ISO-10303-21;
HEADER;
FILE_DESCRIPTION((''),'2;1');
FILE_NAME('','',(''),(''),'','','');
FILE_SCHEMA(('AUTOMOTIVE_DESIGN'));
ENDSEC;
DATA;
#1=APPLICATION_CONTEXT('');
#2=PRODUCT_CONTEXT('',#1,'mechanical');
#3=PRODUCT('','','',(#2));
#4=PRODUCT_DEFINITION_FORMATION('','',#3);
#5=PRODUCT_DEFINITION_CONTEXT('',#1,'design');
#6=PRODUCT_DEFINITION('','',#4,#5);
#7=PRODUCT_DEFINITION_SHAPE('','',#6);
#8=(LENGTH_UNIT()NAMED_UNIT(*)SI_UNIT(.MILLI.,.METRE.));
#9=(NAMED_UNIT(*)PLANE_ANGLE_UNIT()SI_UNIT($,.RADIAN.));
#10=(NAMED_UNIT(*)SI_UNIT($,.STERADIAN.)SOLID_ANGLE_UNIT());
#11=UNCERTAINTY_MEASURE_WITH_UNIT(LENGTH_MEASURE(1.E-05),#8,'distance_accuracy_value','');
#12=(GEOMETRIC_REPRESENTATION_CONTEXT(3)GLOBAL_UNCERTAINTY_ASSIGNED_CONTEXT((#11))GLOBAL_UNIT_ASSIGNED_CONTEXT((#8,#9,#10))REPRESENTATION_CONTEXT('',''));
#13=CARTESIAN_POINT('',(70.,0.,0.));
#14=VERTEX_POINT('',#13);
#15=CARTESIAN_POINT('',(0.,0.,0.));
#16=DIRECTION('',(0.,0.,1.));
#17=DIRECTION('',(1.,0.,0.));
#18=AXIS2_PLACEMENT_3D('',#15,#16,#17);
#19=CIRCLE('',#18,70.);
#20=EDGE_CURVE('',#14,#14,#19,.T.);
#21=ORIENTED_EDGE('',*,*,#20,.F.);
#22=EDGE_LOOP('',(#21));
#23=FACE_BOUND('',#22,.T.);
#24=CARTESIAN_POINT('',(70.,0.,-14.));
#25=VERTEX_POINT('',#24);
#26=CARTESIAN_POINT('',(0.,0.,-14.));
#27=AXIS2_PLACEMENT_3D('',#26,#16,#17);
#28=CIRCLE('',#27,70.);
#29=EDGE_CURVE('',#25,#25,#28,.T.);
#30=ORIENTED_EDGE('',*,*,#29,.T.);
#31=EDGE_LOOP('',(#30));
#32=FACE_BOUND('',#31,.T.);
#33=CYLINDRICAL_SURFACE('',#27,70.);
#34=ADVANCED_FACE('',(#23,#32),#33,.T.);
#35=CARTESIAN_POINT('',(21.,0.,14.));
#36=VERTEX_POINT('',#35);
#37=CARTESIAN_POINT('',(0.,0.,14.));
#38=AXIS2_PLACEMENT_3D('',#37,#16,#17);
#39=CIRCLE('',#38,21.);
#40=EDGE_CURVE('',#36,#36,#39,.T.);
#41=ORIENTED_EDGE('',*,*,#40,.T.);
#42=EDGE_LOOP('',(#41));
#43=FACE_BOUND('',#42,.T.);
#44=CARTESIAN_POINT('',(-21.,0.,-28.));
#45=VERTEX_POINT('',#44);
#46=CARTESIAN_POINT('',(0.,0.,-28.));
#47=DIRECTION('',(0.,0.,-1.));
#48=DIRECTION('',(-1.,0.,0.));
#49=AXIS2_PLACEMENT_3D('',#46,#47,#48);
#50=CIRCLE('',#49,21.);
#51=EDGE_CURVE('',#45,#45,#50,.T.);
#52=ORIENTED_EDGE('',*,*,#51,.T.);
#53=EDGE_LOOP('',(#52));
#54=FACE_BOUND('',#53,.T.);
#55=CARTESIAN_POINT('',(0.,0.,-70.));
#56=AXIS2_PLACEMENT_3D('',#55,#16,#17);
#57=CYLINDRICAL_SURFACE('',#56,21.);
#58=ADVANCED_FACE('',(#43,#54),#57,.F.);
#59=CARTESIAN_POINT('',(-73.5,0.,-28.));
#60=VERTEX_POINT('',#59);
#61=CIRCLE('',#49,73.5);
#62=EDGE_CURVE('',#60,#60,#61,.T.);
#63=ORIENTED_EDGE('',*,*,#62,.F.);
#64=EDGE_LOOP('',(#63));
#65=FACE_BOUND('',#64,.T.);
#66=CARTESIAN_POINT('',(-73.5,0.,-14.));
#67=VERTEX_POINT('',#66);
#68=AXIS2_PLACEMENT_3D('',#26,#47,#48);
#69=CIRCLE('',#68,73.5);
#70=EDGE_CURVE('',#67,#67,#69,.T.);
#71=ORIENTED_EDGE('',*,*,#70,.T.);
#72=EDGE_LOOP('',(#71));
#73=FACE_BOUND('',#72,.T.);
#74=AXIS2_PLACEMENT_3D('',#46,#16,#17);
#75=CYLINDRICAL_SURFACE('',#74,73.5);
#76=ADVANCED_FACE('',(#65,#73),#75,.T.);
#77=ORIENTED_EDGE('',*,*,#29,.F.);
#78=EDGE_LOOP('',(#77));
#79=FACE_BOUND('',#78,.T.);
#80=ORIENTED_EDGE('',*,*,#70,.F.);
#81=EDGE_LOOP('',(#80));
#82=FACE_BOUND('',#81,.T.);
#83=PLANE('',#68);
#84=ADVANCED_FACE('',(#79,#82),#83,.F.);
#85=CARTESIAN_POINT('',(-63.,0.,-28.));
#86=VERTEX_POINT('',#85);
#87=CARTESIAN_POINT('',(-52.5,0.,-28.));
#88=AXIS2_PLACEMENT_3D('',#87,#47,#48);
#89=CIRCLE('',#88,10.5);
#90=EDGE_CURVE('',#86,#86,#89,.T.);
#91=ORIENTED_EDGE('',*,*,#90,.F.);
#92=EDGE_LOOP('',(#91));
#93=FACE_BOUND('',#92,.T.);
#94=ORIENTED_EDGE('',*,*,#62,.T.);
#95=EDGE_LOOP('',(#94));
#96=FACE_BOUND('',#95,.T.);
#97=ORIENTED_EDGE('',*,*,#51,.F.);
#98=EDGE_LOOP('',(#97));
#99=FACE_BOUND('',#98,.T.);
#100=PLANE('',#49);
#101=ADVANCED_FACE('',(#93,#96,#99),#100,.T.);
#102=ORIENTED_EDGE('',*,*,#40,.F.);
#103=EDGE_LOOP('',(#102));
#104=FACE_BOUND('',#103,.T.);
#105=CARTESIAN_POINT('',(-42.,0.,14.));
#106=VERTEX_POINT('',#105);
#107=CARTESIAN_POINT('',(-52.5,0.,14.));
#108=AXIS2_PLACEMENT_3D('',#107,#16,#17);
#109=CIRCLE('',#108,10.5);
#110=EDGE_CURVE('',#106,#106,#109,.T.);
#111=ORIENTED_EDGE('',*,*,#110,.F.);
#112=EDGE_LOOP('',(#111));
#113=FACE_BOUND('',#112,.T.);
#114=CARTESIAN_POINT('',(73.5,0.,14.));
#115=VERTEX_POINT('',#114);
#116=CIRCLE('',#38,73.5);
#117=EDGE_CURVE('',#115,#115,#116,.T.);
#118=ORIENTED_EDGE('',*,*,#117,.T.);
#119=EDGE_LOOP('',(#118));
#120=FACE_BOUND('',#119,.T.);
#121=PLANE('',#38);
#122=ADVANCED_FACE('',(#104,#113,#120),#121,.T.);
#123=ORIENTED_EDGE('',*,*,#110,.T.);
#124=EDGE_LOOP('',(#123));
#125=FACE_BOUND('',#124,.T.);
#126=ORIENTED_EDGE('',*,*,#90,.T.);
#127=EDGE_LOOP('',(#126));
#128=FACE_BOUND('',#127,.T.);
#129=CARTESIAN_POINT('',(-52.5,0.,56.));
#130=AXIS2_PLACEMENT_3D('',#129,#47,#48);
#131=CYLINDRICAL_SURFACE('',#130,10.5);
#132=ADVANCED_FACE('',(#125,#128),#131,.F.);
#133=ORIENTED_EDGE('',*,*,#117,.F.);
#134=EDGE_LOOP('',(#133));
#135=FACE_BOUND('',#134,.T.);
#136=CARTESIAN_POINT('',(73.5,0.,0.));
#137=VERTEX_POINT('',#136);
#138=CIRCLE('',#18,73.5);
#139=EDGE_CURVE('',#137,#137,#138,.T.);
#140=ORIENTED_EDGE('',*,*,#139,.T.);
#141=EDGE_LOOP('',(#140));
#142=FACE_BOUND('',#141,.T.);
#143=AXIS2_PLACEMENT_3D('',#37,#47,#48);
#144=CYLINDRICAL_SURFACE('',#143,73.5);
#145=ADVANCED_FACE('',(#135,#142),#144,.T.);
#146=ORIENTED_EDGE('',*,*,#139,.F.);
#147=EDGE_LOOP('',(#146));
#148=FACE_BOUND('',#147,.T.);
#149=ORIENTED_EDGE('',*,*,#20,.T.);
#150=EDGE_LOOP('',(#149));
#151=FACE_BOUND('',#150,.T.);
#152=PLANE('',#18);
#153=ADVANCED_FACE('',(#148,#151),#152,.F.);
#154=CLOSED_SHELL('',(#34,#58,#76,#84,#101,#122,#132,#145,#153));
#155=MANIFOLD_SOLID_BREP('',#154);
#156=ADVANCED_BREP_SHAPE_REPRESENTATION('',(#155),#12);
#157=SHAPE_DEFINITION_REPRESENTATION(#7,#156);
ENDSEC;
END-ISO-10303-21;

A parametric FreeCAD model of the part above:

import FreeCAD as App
import Part
import Sketcher

V = App.Vector

doc = App.newDocument("Part")
body = doc.addObject("PartDesign::Body", "Body")

sketch1 = body.newObject("Sketcher::SketchObject", "Sketch")
sketch1.AttachmentSupport = (doc.getObject("XY_Plane"), [""])
sketch1.MapMode = "FlatFace"
sketch1.addGeometry(Part.Circle(V(0, 0, 0), V(0, 0, 1), 73.5), False)
sketch1.addConstraint(Sketcher.Constraint("Coincident", 0, 3, -1, 1))
sketch1.addConstraint(Sketcher.Constraint("Diameter", 0, 147.0))
pad1 = body.newObject("PartDesign::Pad", "Pad")
pad1.Profile = sketch1
pad1.Length = 14

sketch2 = body.newObject("Sketcher::SketchObject", "Sketch001")
sketch2.AttachmentSupport = (doc.getObject("XY_Plane"), [""])
sketch2.MapMode = "FlatFace"
sketch2.addGeometry(Part.Circle(V(0, 0, 0), V(0, 0, 1), 70), False)
sketch2.addConstraint(Sketcher.Constraint("Coincident", 0, 3, -1, 1))
sketch2.addConstraint(Sketcher.Constraint("Diameter", 0, 140.0))
pad2 = body.newObject("PartDesign::Pad", "Pad001")
pad2.Profile = sketch2
pad2.Length = 14
pad2.Reversed = True

sketch3 = body.newObject("Sketcher::SketchObject", "Sketch002")
sketch3.AttachmentSupport = (doc.getObject("XY_Plane"), [""])
sketch3.MapMode = "FlatFace"
sketch3.AttachmentOffset = App.Placement(V(0, 0, -14), App.Rotation())
sketch3.addGeometry(Part.Circle(V(0, 0, 0), V(0, 0, 1), 73.5), False)
sketch3.addConstraint(Sketcher.Constraint("Coincident", 0, 3, -1, 1))
sketch3.addConstraint(Sketcher.Constraint("Diameter", 0, 147.0))
pad3 = body.newObject("PartDesign::Pad", "Pad002")
pad3.Profile = sketch3
pad3.Length = 14
pad3.Reversed = True

sketch4 = body.newObject("Sketcher::SketchObject", "Sketch003")
sketch4.AttachmentSupport = (doc.getObject("XY_Plane"), [""])
sketch4.MapMode = "FlatFace"
sketch4.AttachmentOffset = App.Placement(V(0, 0, 14), App.Rotation())
sketch4.addGeometry(Part.Circle(V(0, 0, 0), V(0, 0, 1), 21), False)
sketch4.addConstraint(Sketcher.Constraint("Coincident", 0, 3, -1, 1))
sketch4.addConstraint(Sketcher.Constraint("Diameter", 0, 42.0))
pocket1 = body.newObject("PartDesign::Pocket", "Pocket")
pocket1.Profile = sketch4
pocket1.Length = 84

sketch5 = body.newObject("Sketcher::SketchObject", "Sketch004")
sketch5.AttachmentSupport = (doc.getObject("XY_Plane"), [""])
sketch5.MapMode = "FlatFace"
sketch5.AttachmentOffset = App.Placement(V(0, 0, -28), App.Rotation())
sketch5.addGeometry(Part.Circle(V(-52.5, 0, 0), V(0, 0, 1), 10.5), False)
sketch5.addConstraint(Sketcher.Constraint("PointOnObject", 0, 3, -1))
sketch5.addConstraint(Sketcher.Constraint("Diameter", 0, 21.0))
sketch5.addConstraint(Sketcher.Constraint("DistanceX", 0, 3, -1, 1, 52.5))
pocket2 = body.newObject("PartDesign::Pocket", "Pocket001")
pocket2.Profile = sketch5
pocket2.Length = 84
pocket2.Reversed = True

doc.recompute()
